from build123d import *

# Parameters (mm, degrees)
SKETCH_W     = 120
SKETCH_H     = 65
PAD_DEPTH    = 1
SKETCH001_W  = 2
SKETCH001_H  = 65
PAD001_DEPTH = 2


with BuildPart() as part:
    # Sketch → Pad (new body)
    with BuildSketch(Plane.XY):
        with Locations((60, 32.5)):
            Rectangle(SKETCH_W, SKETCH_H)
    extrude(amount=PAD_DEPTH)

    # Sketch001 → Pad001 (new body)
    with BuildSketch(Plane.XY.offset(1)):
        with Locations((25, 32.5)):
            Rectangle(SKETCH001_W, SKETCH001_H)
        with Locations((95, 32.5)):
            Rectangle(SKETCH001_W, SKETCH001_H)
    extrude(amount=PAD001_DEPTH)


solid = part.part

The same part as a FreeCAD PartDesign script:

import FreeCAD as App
import Part
import Sketcher

V = App.Vector


def add_polygon(sketch, points):
    """Adds a closed chain of lines whose ends are joined by coincident constraints."""
    first, n = sketch.GeometryCount, len(points)
    for a, b in zip(points, points[1:] + points[:1]):
        sketch.addGeometry(Part.LineSegment(App.Vector(*a, 0), App.Vector(*b, 0)), False)
    for i in range(n):
        sketch.addConstraint(Sketcher.Constraint("Coincident", first + i, 2, first + (i + 1) % n, 1))

doc = App.newDocument("Part")
body = doc.addObject("PartDesign::Body", "Body")

sketch1 = body.newObject("Sketcher::SketchObject", "Sketch")
sketch1.AttachmentSupport = (doc.getObject("XY_Plane"), [""])
sketch1.MapMode = "FlatFace"
add_polygon(sketch1, [(0, 65), (0, 0), (120, 0), (120, 65)])
sketch1.addConstraint([
    Sketcher.Constraint("Vertical", 0),
    Sketcher.Constraint("Horizontal", 1),
    Sketcher.Constraint("Vertical", 2),
    Sketcher.Constraint("Horizontal", 3),
    Sketcher.Constraint("Coincident", 0, 2, -1, 1),
    Sketcher.Constraint("DistanceX", 1, 1, 1, 2, 120.0),
    Sketcher.Constraint("DistanceY", 0, 2, 0, 1, 65.0),
])
pad1 = body.newObject("PartDesign::Pad", "Pad")
pad1.Profile = sketch1
pad1.Length = 1

sketch2 = body.newObject("Sketcher::SketchObject", "Sketch001")
sketch2.AttachmentSupport = (doc.getObject("XY_Plane"), [""])
sketch2.MapMode = "FlatFace"
sketch2.AttachmentOffset = App.Placement(V(0, 0, 1), App.Rotation())
add_polygon(sketch2, [(24, 65), (24, 0), (26, 0), (26, 65)])
add_polygon(sketch2, [(94, 65), (94, 0), (96, 0), (96, 65)])
sketch2.addConstraint([
    Sketcher.Constraint("Vertical", 0),
    Sketcher.Constraint("Horizontal", 1),
    Sketcher.Constraint("Vertical", 2),
    Sketcher.Constraint("Horizontal", 3),
    Sketcher.Constraint("Vertical", 4),
    Sketcher.Constraint("Horizontal", 5),
    Sketcher.Constraint("Vertical", 6),
    Sketcher.Constraint("Horizontal", 7),
    Sketcher.Constraint("PointOnObject", 0, 2, -1),
    Sketcher.Constraint("PointOnObject", 4, 2, -1),
    Sketcher.Constraint("Horizontal", 3, 2, 6, 2),
    Sketcher.Constraint("Equal", 3, 5),
    Sketcher.Constraint("DistanceX", 1, 1, 1, 2, 2.0),
    Sketcher.Constraint("DistanceY", 0, 2, 0, 1, 65.0),
    Sketcher.Constraint("DistanceX", -1, 1, 0, 2, 24.0),
    Sketcher.Constraint("DistanceX", -1, 1, 4, 2, 94.0),
])
pad2 = body.newObject("PartDesign::Pad", "Pad001")
pad2.Profile = sketch2
pad2.Length = 2

doc.recompute()
